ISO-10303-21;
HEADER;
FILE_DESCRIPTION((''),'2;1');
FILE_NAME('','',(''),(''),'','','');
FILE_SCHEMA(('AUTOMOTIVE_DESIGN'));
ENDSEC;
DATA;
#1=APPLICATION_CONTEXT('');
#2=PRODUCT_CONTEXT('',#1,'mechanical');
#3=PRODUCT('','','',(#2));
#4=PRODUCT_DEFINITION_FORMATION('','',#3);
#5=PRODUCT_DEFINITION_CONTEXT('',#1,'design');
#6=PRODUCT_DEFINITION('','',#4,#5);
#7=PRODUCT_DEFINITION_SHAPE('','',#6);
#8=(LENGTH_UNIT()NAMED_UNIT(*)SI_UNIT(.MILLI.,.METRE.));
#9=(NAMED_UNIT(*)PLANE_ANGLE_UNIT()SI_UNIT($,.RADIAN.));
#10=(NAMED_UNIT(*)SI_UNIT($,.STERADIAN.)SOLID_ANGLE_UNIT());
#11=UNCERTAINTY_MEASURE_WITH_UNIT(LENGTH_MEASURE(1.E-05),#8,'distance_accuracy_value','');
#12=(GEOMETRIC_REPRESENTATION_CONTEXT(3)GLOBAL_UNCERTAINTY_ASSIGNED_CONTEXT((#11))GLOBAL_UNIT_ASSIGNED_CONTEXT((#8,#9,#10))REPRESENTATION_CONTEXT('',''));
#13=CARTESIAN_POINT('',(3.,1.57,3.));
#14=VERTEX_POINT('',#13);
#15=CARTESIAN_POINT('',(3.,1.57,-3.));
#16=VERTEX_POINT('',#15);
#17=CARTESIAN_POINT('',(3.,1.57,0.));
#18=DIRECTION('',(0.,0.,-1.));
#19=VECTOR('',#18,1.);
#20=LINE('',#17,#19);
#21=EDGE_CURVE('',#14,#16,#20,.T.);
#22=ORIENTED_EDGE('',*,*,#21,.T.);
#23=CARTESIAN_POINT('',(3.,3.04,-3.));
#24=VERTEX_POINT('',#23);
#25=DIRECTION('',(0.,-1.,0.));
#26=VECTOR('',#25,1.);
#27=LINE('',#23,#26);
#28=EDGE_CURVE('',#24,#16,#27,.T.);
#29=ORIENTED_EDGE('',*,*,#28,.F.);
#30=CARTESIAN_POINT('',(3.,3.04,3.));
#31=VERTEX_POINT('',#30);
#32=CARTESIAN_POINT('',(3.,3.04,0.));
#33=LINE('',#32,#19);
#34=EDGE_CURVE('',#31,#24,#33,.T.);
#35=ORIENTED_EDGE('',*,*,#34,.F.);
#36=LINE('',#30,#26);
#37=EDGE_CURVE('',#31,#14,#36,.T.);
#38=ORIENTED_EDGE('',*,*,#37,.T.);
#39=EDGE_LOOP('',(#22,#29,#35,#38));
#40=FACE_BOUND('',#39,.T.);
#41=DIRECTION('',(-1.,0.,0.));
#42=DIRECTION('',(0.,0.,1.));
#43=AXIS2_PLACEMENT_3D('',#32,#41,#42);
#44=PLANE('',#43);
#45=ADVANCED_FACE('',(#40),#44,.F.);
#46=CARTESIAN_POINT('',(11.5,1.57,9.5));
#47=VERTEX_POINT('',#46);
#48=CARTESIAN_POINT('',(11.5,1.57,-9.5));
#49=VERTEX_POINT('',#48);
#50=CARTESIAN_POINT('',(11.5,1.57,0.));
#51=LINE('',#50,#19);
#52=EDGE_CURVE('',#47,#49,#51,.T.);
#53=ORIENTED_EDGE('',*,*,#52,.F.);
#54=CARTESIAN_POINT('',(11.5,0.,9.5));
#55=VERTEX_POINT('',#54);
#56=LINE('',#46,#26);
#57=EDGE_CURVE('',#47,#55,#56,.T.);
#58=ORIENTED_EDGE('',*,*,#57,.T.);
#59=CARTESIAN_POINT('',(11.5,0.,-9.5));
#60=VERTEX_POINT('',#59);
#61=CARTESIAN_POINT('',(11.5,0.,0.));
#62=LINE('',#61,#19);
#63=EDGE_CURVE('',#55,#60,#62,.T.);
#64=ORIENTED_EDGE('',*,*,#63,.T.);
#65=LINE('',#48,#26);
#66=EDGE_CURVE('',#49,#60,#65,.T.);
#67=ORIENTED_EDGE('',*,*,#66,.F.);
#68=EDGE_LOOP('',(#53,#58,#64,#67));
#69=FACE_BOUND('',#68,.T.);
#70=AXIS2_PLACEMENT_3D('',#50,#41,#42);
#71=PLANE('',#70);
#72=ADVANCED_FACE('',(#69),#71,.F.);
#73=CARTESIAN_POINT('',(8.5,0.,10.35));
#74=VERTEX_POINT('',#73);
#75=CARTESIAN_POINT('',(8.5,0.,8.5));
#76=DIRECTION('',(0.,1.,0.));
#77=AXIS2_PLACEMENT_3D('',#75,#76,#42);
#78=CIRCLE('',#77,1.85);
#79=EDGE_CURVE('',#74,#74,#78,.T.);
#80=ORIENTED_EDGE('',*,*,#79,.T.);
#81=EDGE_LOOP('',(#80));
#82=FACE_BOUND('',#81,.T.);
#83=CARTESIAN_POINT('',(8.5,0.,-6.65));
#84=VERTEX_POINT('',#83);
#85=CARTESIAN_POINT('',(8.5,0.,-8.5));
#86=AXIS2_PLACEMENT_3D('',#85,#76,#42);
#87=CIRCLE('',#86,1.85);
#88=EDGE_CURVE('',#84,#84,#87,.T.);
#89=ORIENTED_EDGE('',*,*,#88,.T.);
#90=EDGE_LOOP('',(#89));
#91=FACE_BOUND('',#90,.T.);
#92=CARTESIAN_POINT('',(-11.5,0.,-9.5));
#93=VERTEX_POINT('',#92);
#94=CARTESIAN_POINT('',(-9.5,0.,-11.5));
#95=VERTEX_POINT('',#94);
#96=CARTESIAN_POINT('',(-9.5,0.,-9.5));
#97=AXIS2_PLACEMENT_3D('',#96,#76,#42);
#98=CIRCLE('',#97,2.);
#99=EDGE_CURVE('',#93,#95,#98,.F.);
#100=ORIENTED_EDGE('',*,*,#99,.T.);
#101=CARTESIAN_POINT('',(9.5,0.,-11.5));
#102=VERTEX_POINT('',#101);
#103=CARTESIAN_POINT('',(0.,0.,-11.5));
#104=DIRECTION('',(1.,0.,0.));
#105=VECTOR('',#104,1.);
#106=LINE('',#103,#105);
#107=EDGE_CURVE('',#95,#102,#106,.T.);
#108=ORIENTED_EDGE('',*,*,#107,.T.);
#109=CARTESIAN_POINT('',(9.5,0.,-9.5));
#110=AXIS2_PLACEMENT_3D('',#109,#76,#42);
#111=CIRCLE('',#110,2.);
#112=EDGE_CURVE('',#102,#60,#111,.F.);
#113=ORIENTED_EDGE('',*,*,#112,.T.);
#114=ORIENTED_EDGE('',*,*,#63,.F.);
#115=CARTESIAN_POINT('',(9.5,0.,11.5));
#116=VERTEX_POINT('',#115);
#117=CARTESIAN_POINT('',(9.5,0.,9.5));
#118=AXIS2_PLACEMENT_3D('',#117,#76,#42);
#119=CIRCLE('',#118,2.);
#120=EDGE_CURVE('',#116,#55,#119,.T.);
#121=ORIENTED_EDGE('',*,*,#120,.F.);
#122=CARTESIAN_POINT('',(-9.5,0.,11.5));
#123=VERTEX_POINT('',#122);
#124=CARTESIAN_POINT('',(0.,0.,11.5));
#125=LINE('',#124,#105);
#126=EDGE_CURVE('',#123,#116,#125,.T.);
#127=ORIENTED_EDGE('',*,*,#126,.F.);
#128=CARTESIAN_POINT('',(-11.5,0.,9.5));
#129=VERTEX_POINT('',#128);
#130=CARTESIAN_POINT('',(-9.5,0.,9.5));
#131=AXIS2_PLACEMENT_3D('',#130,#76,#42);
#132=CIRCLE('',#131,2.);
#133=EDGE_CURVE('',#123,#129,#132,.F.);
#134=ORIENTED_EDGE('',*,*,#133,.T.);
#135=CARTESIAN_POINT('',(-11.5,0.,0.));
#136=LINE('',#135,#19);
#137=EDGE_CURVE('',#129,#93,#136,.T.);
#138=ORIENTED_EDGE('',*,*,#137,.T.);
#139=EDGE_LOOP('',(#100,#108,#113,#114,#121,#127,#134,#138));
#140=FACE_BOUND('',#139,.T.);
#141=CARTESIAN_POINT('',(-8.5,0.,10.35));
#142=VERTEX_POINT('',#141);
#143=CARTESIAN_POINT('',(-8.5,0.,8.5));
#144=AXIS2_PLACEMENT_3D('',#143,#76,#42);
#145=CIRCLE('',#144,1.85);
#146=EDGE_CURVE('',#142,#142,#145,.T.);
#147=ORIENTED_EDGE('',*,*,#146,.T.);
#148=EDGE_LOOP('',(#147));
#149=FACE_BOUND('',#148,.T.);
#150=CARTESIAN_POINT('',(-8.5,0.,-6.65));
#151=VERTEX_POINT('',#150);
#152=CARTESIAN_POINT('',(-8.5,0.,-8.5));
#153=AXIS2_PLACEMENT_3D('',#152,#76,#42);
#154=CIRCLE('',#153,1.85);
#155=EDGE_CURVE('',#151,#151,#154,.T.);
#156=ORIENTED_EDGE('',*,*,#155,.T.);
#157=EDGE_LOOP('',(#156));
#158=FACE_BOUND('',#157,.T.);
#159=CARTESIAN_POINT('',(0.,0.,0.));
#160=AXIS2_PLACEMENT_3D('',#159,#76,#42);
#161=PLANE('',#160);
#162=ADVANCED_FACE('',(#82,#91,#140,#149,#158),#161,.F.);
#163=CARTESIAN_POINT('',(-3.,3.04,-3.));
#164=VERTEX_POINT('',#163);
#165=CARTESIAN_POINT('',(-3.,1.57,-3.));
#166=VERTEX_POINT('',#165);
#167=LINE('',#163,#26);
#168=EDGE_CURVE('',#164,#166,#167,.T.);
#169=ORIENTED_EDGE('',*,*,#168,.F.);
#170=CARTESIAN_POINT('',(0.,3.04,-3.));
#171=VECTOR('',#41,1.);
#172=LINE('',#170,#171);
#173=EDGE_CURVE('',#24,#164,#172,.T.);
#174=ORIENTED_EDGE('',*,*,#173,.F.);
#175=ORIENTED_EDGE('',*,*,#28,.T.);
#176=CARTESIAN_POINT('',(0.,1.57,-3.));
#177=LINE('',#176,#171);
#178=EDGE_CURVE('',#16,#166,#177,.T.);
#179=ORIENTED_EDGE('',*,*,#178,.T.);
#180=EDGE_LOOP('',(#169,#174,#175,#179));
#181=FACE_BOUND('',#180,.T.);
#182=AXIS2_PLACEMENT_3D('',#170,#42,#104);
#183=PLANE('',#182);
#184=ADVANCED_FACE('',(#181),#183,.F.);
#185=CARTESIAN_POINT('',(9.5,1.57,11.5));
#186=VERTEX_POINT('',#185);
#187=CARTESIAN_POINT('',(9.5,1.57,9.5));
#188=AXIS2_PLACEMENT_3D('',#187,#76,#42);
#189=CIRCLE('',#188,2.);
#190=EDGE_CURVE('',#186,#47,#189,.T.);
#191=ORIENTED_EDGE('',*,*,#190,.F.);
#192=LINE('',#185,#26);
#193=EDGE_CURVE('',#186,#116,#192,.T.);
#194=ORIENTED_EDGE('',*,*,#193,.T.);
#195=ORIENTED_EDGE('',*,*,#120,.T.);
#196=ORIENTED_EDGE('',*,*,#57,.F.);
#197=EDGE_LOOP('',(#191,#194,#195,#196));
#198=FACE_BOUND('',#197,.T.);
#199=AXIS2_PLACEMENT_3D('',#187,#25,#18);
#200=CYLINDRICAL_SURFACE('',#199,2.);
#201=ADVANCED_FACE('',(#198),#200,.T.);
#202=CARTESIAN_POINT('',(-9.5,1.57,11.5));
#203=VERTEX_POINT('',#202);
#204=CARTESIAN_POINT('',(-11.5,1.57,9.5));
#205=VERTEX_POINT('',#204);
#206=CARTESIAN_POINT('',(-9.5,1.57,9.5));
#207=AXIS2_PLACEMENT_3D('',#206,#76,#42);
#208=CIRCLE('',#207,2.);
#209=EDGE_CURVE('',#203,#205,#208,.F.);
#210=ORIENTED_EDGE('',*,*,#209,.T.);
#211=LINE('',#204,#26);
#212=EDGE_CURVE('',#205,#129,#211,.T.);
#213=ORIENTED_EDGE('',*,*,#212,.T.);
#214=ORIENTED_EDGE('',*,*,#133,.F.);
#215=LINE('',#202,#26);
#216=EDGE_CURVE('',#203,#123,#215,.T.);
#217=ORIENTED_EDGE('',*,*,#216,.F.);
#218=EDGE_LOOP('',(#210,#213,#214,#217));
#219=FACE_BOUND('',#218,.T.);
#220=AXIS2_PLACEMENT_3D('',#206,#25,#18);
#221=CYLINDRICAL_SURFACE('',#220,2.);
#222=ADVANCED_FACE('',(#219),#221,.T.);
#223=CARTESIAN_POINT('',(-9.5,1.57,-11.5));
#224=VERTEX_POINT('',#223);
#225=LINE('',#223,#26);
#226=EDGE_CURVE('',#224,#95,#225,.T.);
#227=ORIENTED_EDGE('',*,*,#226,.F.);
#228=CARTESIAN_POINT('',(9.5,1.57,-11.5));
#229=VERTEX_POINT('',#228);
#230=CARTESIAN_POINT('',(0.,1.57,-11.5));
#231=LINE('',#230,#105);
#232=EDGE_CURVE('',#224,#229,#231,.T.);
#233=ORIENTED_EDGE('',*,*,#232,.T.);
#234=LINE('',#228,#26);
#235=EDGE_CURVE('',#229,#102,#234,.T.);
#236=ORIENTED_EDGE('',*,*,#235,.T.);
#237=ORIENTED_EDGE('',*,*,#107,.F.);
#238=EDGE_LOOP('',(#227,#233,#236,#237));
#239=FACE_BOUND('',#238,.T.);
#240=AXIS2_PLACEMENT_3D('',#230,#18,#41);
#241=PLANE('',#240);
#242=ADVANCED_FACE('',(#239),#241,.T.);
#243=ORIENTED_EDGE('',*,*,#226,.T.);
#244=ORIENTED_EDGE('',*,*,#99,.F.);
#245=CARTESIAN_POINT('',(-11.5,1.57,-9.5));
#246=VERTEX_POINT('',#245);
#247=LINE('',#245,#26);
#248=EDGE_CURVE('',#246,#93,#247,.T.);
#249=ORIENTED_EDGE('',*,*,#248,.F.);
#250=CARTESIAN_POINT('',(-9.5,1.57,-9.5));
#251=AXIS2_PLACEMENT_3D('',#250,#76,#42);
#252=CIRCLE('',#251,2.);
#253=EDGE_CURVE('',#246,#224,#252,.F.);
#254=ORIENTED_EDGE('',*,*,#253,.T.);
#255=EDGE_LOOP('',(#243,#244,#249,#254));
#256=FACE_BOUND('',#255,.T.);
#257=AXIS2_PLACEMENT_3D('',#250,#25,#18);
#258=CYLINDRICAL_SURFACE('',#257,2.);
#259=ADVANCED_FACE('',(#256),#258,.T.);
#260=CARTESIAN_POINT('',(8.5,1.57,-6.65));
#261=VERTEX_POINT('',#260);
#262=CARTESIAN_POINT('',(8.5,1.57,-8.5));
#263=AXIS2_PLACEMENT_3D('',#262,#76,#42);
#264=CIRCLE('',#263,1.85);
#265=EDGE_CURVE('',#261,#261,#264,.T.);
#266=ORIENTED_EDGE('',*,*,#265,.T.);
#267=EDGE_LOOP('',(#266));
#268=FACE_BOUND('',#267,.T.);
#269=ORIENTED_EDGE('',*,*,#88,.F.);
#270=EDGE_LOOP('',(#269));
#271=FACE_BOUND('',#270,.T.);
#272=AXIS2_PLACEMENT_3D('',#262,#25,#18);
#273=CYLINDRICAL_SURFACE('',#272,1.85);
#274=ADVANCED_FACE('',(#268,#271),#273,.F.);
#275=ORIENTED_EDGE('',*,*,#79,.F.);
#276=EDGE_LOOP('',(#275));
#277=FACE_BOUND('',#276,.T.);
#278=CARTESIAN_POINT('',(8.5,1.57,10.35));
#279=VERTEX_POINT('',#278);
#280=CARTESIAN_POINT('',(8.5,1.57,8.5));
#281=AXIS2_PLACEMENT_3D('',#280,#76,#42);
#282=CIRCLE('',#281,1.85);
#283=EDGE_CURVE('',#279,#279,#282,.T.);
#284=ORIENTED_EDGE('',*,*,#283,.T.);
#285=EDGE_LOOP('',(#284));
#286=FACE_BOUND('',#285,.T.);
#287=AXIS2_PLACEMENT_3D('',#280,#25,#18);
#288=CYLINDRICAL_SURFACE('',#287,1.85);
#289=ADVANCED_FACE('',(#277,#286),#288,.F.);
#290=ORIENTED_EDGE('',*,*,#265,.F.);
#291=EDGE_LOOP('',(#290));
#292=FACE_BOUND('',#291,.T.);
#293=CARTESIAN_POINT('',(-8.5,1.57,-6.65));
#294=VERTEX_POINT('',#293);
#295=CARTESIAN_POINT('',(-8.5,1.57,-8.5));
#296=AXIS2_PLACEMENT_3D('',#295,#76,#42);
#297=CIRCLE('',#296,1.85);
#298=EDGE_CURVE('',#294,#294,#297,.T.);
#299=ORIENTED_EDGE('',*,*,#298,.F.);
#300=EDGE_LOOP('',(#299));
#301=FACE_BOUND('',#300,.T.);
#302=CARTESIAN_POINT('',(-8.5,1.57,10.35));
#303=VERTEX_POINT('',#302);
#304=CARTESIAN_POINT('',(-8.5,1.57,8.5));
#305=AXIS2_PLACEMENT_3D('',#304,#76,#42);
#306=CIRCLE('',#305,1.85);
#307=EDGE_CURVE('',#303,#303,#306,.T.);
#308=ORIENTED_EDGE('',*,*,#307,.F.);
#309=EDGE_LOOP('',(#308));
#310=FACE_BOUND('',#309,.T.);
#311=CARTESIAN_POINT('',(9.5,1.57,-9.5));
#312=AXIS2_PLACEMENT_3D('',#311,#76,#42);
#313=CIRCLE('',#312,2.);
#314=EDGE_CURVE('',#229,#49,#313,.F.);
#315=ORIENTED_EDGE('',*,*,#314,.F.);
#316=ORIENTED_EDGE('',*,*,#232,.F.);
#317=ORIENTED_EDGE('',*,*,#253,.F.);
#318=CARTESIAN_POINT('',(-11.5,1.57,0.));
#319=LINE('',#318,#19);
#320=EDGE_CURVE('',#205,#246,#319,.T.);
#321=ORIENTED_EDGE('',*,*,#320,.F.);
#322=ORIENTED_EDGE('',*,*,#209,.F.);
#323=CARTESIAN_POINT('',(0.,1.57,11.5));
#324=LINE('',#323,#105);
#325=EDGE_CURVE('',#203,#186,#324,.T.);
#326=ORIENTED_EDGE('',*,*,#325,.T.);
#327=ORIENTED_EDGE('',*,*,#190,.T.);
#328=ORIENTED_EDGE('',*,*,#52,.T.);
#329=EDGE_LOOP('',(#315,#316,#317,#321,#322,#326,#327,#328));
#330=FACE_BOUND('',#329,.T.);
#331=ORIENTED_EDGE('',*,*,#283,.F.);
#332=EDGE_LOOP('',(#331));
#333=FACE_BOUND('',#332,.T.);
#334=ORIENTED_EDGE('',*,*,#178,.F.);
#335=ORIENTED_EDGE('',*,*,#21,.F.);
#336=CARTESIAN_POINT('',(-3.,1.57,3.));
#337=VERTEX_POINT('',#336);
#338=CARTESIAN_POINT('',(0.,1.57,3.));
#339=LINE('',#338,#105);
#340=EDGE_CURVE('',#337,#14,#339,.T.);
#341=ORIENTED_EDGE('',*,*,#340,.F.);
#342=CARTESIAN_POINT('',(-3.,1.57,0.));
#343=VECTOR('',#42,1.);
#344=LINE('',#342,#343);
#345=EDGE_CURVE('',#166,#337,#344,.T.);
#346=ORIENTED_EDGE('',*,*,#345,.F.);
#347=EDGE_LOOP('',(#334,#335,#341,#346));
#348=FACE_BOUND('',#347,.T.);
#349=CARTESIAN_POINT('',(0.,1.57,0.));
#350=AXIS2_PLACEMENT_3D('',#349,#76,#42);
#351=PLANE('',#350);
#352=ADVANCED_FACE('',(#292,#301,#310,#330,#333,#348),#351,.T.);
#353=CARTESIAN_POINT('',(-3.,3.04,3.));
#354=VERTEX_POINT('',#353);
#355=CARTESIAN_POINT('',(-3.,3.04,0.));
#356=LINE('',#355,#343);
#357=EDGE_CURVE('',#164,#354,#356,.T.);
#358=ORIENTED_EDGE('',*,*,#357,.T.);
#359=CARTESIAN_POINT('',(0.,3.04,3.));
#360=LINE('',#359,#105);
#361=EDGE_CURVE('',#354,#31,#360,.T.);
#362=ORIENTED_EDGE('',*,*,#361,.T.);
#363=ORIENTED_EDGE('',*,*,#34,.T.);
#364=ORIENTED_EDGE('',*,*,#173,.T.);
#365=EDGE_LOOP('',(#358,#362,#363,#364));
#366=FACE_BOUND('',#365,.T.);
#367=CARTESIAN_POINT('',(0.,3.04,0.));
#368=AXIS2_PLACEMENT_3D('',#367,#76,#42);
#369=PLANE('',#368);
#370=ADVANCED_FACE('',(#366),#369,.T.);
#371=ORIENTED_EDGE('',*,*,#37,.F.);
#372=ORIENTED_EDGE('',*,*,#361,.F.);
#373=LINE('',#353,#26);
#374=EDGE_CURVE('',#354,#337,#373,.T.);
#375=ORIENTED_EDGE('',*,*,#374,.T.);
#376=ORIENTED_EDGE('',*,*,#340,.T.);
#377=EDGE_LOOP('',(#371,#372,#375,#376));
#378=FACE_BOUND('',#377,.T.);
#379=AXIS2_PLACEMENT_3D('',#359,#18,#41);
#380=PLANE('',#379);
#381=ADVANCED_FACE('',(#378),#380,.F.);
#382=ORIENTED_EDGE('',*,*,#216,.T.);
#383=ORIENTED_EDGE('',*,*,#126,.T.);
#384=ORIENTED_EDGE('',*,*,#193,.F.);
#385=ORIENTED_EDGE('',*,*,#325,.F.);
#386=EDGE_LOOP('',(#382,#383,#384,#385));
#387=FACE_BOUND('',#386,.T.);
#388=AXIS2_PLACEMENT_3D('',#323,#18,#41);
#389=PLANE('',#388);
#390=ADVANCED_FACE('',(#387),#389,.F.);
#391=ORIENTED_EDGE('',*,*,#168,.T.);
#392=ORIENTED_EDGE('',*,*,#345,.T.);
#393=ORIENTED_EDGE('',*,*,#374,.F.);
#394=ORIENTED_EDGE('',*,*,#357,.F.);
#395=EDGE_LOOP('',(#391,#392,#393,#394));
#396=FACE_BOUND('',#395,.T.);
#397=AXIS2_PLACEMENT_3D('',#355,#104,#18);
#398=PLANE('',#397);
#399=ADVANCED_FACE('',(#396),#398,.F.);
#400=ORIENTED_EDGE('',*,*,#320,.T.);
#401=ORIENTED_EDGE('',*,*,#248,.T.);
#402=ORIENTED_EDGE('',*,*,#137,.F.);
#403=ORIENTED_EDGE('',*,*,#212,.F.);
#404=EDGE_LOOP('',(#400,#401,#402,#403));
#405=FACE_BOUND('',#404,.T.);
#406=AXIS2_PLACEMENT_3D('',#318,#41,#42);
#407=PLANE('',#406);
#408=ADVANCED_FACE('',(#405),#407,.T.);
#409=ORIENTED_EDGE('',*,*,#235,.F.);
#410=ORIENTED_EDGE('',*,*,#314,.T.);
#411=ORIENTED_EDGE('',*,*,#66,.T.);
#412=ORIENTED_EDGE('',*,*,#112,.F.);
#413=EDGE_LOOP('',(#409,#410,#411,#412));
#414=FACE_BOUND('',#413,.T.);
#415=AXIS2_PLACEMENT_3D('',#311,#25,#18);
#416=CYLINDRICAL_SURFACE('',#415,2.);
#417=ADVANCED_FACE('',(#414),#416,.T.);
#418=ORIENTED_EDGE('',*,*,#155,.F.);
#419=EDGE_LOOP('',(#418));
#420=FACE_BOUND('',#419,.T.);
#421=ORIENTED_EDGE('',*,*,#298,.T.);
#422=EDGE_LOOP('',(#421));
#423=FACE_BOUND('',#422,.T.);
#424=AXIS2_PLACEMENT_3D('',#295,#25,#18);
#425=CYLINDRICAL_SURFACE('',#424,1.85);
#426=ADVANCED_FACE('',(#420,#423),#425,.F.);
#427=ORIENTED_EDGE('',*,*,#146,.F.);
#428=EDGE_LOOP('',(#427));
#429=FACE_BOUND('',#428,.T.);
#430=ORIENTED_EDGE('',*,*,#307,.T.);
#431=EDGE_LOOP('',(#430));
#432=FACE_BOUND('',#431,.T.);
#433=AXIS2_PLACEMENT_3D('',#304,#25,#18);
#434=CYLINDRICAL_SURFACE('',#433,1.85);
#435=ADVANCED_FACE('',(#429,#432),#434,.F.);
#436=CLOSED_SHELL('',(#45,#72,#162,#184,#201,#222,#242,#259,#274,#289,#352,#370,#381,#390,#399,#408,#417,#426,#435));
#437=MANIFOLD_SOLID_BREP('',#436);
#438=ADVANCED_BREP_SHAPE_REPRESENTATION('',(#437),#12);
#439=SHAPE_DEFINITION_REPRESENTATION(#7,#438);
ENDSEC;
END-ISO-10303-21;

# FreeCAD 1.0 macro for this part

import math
import FreeCAD as App
import Part
import Sketcher
Q = App.Units.Quantity


def add_polygon(sketch, points):
    """Adds a closed chain of lines whose ends are joined by coincident constraints."""
    first, n = sketch.GeometryCount, len(points)
    for a, b in zip(points, points[1:] + points[:1]):
        sketch.addGeometry(Part.LineSegment(App.Vector(*a, 0), App.Vector(*b, 0)), False)
    for i in range(n):
        sketch.addConstraint(Sketcher.Constraint("Coincident", first + i, 2, first + (i + 1) % n, 1))

doc = App.newDocument("Part")
body = doc.addObject("PartDesign::Body", "Body")

sketch1 = body.newObject("Sketcher::SketchObject", "Sketch")
sketch1.AttachmentSupport = (doc.getObject("XZ_Plane"), [""])
sketch1.MapMode = "FlatFace"
sketch1.addGeometry([
    Part.ArcOfCircle(Part.Circle(App.Vector(-9.5, -9.5, 0), App.Vector(0, 0, 1), 2), math.radians(-180), math.radians(-90)),
    Part.LineSegment(App.Vector(-11.5, -9.5, 0), App.Vector(-11.5, 9.5, 0)),
    Part.ArcOfCircle(Part.Circle(App.Vector(-9.5, 9.5, 0), App.Vector(0, 0, 1), 2), math.radians(90), math.radians(180)),
    Part.LineSegment(App.Vector(-9.5, 11.5, 0), App.Vector(9.5, 11.5, 0)),
    Part.ArcOfCircle(Part.Circle(App.Vector(9.5, 9.5, 0), App.Vector(0, 0, 1), 2), math.radians(0), math.radians(90)),
    Part.LineSegment(App.Vector(11.5, 9.5, 0), App.Vector(11.5, -9.5, 0)),
    Part.ArcOfCircle(Part.Circle(App.Vector(9.5, -9.5, 0), App.Vector(0, 0, 1), 2), math.radians(-90), math.radians(0)),
    Part.LineSegment(App.Vector(9.5, -11.5, 0), App.Vector(-9.5, -11.5, 0)),
    Part.Circle(App.Vector(8.5, 8.5, 0), App.Vector(0, 0, 1), 1.9),
    Part.Circle(App.Vector(-8.5, 8.5, 0), App.Vector(0, 0, 1), 1.9),
    Part.Circle(App.Vector(8.5, -8.5, 0), App.Vector(0, 0, 1), 1.9),
    Part.Circle(App.Vector(-8.5, -8.5, 0), App.Vector(0, 0, 1), 1.9),
], False)
sketch1.addConstraint([
    Sketcher.Constraint("Tangent", 0, 1, 1, 1),
    Sketcher.Constraint("Tangent", 1, 2, 2, 2),
    Sketcher.Constraint("Tangent", 2, 1, 3, 1),
    Sketcher.Constraint("Tangent", 3, 2, 4, 2),
    Sketcher.Constraint("Tangent", 4, 1, 5, 1),
    Sketcher.Constraint("Tangent", 5, 2, 6, 2),
    Sketcher.Constraint("Tangent", 6, 1, 7, 1),
    Sketcher.Constraint("Tangent", 7, 2, 0, 2),
    Sketcher.Constraint("Vertical", 1),
    Sketcher.Constraint("Horizontal", 3),
    Sketcher.Constraint("Vertical", 5),
    Sketcher.Constraint("Horizontal", 7),
    Sketcher.Constraint("Equal", 0, 2),
    Sketcher.Constraint("Equal", 2, 4),
    Sketcher.Constraint("Equal", 4, 6),
    Sketcher.Constraint("Equal", 8, 9),
    Sketcher.Constraint("Equal", 9, 10),
    Sketcher.Constraint("Equal", 10, 11),
    Sketcher.Constraint("Symmetric", 0, 3, 4, 3, -1, 1),
    Sketcher.Constraint("Symmetric", 9, 3, 10, 3, -1, 1),
    Sketcher.Constraint("Symmetric", 8, 3, 11, 3, -1, 1),
    Sketcher.Constraint("Symmetric", 8, 3, 9, 3, -2),
    Sketcher.Constraint("Equal", 7, 1),
    Sketcher.Constraint("Radius", 0, Q("2 mm")),
    Sketcher.Constraint("Diameter", 8, Q("3.7 mm")),
    Sketcher.Constraint("DistanceX", 3, 1, 3, 2, Q("19 mm")),
    Sketcher.Constraint("DistanceX", 8, 3, 4, 3, Q("1 mm")),
    Sketcher.Constraint("DistanceY", 8, 3, 4, 3, Q("1 mm")),
])
pad1 = body.newObject("PartDesign::Pad", "Pad")
pad1.Profile = sketch1
pad1.Length = 1.57
pad1.Reversed = True

sketch2 = body.newObject("Sketcher::SketchObject", "Sketch001")
sketch2.AttachmentSupport = (doc.getObject("XZ_Plane"), [""])
sketch2.MapMode = "FlatFace"
sketch2.AttachmentOffset = App.Placement(App.Vector(0, 0, -1.57), App.Rotation())
add_polygon(sketch2, [(-3, -3), (-3, 3), (3, 3), (3, -3)])
sketch2.addConstraint([
    Sketcher.Constraint("Vertical", 0),
    Sketcher.Constraint("Horizontal", 1),
    Sketcher.Constraint("Vertical", 2),
    Sketcher.Constraint("Horizontal", 3),
    Sketcher.Constraint("Symmetric", 0, 2, 2, 2, -1, 1),
    Sketcher.Constraint("Equal", 3, 0),
    Sketcher.Constraint("DistanceX", 1, 1, 1, 2, Q("6 mm")),
])
pad2 = body.newObject("PartDesign::Pad", "Pad001")
pad2.Profile = sketch2
pad2.Length = 1.47
pad2.Reversed = True

doc.recompute()
